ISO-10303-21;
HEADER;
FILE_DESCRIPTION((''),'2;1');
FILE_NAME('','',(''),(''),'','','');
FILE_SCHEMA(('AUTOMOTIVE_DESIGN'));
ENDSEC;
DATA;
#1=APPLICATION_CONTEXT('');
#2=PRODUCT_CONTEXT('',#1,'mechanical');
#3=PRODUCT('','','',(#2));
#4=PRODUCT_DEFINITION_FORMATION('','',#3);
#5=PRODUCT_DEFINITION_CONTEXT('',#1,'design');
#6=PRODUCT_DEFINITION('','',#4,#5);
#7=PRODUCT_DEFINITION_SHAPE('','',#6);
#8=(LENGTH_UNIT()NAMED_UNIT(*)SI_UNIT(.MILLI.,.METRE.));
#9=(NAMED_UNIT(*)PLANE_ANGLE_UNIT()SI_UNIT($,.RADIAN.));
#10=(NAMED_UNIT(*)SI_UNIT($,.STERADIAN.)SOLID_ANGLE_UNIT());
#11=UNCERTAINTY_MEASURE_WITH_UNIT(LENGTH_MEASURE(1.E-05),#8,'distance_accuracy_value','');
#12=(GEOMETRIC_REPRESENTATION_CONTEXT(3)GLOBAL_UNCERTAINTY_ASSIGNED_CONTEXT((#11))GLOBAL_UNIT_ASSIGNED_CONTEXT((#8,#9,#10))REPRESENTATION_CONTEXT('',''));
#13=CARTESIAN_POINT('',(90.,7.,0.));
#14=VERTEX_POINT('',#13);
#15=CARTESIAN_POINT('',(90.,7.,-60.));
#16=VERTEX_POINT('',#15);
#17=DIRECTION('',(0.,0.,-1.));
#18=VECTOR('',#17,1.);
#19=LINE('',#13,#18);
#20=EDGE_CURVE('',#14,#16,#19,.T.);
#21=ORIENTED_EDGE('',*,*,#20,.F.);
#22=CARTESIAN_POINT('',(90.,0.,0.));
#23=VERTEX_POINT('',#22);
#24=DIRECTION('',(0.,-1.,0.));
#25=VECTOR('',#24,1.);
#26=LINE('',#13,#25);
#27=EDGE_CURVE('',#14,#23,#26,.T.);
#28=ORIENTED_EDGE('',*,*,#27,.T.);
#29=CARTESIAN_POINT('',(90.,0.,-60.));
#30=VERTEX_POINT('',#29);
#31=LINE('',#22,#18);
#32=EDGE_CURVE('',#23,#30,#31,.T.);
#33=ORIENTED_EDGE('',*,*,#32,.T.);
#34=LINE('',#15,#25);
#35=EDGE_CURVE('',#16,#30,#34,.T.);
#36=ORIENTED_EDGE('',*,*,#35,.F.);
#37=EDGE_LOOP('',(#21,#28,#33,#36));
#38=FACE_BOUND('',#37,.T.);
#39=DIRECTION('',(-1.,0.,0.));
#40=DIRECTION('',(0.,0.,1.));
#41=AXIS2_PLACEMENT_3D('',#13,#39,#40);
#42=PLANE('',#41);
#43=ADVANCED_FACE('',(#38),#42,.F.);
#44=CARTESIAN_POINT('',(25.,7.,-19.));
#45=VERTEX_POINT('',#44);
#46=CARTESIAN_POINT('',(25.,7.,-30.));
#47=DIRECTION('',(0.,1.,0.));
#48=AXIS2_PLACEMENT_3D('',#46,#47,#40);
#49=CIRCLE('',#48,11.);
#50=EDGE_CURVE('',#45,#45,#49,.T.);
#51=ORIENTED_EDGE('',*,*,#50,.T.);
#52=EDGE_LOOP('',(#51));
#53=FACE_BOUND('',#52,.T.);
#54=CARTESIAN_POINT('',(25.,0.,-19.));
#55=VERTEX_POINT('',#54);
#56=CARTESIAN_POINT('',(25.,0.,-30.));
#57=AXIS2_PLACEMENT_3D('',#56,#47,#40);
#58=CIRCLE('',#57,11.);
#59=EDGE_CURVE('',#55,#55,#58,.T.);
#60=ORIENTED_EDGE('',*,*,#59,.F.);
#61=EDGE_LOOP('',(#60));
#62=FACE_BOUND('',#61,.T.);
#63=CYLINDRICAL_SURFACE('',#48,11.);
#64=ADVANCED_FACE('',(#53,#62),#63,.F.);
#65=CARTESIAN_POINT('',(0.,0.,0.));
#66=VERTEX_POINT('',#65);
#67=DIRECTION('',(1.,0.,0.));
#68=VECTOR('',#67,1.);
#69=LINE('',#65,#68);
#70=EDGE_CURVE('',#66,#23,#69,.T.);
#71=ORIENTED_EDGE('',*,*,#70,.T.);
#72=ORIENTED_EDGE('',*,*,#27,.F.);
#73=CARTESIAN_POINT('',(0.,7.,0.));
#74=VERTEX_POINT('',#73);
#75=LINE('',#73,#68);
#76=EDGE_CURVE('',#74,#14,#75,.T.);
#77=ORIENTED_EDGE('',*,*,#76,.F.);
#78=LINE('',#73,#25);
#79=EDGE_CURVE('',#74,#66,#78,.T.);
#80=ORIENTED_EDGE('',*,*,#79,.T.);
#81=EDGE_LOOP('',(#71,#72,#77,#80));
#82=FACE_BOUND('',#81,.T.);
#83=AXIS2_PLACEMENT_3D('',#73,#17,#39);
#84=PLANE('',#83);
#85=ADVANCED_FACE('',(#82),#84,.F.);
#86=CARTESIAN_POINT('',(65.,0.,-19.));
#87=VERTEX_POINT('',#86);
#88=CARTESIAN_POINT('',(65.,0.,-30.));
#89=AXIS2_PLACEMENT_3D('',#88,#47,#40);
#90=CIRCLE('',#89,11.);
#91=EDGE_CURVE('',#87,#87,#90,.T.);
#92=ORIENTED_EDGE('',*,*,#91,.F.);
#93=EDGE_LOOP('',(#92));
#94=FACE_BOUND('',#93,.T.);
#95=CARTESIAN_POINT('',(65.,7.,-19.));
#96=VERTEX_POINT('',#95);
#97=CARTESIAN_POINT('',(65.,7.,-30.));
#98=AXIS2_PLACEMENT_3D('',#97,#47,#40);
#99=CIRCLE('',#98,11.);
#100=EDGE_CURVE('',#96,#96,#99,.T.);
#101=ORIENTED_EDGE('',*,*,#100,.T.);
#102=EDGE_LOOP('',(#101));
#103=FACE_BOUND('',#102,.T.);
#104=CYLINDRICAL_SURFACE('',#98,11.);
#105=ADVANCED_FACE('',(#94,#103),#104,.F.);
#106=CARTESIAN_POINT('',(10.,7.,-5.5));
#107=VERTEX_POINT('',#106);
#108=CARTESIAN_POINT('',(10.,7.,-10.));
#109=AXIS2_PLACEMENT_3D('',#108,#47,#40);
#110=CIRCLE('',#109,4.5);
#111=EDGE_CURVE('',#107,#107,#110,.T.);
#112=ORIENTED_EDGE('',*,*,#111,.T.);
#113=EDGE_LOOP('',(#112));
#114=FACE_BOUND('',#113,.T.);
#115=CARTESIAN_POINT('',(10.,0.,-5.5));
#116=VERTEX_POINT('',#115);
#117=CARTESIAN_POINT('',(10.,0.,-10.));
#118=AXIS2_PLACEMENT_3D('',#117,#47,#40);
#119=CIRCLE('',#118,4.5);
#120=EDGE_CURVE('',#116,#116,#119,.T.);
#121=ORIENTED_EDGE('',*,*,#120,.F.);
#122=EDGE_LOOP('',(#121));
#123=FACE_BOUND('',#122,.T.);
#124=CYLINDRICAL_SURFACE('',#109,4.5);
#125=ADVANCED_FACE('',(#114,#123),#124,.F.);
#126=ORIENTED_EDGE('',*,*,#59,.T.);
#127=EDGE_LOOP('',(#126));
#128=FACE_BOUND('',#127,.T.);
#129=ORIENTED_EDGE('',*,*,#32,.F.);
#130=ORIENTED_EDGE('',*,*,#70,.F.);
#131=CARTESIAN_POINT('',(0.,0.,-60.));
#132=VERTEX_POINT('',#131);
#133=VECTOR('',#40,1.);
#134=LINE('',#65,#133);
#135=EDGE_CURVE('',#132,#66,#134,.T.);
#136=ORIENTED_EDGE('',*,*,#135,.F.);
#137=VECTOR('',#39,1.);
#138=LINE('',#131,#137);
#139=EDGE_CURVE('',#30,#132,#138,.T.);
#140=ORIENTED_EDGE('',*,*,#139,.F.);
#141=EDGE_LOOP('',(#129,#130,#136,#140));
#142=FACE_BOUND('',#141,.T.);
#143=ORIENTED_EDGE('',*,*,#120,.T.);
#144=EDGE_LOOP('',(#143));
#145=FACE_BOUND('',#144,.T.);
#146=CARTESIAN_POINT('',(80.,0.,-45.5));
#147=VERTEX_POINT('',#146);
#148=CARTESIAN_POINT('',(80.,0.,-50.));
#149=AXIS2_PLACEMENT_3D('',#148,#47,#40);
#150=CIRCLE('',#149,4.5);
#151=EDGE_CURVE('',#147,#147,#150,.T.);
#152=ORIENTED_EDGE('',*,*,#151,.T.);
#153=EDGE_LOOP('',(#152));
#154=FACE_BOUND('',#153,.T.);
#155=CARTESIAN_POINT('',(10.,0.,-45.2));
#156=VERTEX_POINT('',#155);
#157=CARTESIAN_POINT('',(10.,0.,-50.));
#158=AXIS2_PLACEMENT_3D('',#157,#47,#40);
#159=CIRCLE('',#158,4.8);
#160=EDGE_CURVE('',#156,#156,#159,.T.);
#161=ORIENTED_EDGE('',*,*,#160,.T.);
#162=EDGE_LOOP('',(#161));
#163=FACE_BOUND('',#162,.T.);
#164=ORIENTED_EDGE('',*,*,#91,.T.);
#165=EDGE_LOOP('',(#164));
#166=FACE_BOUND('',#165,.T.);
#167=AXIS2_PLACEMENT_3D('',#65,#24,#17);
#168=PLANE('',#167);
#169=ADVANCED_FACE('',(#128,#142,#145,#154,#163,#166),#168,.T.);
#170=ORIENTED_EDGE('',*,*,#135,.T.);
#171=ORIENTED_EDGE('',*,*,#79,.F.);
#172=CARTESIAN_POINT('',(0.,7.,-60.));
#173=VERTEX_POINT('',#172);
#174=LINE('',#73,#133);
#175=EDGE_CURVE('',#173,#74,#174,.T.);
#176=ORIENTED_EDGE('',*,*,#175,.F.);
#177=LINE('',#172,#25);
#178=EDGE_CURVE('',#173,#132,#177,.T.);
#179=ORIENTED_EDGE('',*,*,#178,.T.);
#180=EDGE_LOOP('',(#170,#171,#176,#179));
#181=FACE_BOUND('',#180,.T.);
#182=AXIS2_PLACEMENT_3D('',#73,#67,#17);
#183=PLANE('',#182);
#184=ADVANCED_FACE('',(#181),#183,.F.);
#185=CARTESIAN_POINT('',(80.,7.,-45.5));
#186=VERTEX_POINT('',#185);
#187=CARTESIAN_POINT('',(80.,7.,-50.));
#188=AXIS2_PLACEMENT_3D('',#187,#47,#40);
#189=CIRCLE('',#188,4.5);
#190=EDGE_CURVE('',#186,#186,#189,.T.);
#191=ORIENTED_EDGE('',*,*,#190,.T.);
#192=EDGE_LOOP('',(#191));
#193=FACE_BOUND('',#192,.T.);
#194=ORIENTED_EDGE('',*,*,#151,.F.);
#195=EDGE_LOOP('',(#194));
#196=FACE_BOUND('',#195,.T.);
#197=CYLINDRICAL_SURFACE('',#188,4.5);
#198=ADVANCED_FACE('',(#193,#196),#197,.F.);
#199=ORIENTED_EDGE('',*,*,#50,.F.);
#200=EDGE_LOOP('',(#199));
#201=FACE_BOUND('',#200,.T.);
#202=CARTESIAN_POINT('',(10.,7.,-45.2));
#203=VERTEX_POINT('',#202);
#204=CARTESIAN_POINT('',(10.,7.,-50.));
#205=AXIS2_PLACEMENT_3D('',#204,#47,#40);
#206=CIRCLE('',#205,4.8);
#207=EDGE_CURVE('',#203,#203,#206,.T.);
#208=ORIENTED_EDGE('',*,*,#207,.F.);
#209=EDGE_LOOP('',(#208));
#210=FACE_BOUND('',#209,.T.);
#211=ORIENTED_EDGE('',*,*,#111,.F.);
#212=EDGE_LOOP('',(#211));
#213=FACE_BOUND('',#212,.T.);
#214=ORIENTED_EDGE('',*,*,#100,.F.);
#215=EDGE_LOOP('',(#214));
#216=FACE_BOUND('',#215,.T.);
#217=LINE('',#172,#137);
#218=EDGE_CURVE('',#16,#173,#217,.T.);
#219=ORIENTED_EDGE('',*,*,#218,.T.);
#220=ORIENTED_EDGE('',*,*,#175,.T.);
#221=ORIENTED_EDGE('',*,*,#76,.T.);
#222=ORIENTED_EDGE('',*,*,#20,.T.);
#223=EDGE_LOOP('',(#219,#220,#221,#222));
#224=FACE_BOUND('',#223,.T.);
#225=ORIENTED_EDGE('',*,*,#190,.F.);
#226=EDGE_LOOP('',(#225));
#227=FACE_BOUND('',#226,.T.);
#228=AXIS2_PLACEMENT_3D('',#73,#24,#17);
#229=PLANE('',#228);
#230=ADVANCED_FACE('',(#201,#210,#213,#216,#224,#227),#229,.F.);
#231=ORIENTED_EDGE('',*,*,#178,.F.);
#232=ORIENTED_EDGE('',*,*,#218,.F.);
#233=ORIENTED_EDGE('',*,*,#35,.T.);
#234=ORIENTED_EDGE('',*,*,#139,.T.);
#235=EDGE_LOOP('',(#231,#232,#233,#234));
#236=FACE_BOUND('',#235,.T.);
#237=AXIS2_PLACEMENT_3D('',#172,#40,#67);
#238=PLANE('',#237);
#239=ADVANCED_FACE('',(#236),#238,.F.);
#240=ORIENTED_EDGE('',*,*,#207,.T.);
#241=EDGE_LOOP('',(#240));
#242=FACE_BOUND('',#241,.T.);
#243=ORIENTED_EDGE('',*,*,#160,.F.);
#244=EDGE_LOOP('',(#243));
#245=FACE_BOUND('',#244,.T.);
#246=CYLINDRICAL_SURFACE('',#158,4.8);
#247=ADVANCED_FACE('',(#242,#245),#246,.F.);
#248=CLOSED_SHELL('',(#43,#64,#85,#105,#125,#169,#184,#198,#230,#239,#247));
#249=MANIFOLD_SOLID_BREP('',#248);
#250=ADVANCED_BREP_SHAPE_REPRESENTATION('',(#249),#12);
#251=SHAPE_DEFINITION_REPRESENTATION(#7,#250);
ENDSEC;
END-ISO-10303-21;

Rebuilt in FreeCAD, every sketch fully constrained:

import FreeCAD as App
import Part
import Sketcher

doc = App.newDocument("Part")
params = doc.addObject("Spreadsheet::Sheet", "Params")
for row, (alias, value) in enumerate([
    ("sketch1_width", "90 mm"),
    ("sketch1_height", "60 mm"),
    ("pad1_length", "7 mm"),
    ("sketch2_diameter", "22 mm"),
    ("hole_diameter", "22 mm"),
    ("sketch3_diameter", "9 mm"),
    ("hole2_diameter", "9 mm"),
    ("sketch4_diameter", "9.6 mm"),
    ("pocket1_length", "7 mm"),
], start=1):
    params.set(f"A{row}", alias)
    params.set(f"B{row}", "=" + value)
    params.setAlias(f"B{row}", alias)

body = doc.addObject("PartDesign::Body", "Body")

sketch1 = doc.addObject("Sketcher::SketchObject", "Sketch")
body.addObject(sketch1)
sketch1.AttachmentSupport = (doc.XZ_Plane, [""])
sketch1.MapMode = "FlatFace"
sketch1.addGeometry(Part.LineSegment(App.Vector(0, -60, 0), App.Vector(0, 0, 0)), False)
sketch1.addGeometry(Part.LineSegment(App.Vector(0, 0, 0), App.Vector(90, 0, 0)), False)
sketch1.addGeometry(Part.LineSegment(App.Vector(90, 0, 0), App.Vector(90, -60, 0)), False)
sketch1.addGeometry(Part.LineSegment(App.Vector(90, -60, 0), App.Vector(0, -60, 0)), False)
sketch1.addConstraint(Sketcher.Constraint("Coincident", 0, 2, 1, 1))
sketch1.addConstraint(Sketcher.Constraint("Coincident", 1, 2, 2, 1))
sketch1.addConstraint(Sketcher.Constraint("Coincident", 2, 2, 3, 1))
sketch1.addConstraint(Sketcher.Constraint("Coincident", 3, 2, 0, 1))
sketch1.addConstraint(Sketcher.Constraint("Vertical", 0))
sketch1.addConstraint(Sketcher.Constraint("Horizontal", 1))
sketch1.addConstraint(Sketcher.Constraint("Vertical", 2))
sketch1.addConstraint(Sketcher.Constraint("Horizontal", 3))
sketch1.addConstraint(Sketcher.Constraint("Coincident", 0, 2, -1, 1))
sketch1.addConstraint(Sketcher.Constraint("DistanceX", 1, 1, 1, 2, 90.0))
sketch1.addConstraint(Sketcher.Constraint("DistanceY", 0, 1, 0, 2, 60.0))
sketch1.setExpression("Constraints[9]", "Params.sketch1_width")
sketch1.setExpression("Constraints[10]", "Params.sketch1_height")
pad1 = doc.addObject("PartDesign::Pad", "Pad")
body.addObject(pad1)
pad1.Profile = sketch1
pad1.setExpression("Length", "Params.pad1_length")
pad1.Reversed = True

sketch2 = doc.addObject("Sketcher::SketchObject", "Sketch001")
body.addObject(sketch2)
sketch2.AttachmentSupport = (doc.XZ_Plane, [""])
sketch2.MapMode = "FlatFace"
sketch2.AttachmentOffset = App.Placement(App.Vector(0, 0, -7), App.Rotation())
sketch2.addGeometry(Part.Circle(App.Vector(25, -30, 0), App.Vector(0, 0, 1), 11), False)
sketch2.addGeometry(Part.Circle(App.Vector(65, -30, 0), App.Vector(0, 0, 1), 11), False)
sketch2.addConstraint(Sketcher.Constraint("Equal", 0, 1))
sketch2.addConstraint(Sketcher.Constraint("Horizontal", 0, 3, 1, 3))
sketch2.addConstraint(Sketcher.Constraint("Diameter", 0, 22.0))
sketch2.addConstraint(Sketcher.Constraint("DistanceX", -1, 1, 0, 3, 25.0))
sketch2.addConstraint(Sketcher.Constraint("DistanceY", 0, 3, -1, 1, 30.0))
sketch2.addConstraint(Sketcher.Constraint("DistanceX", -1, 1, 1, 3, 65.0))
sketch2.setExpression("Constraints[2]", "Params.sketch2_diameter")
doc.recompute()
hole = doc.addObject("PartDesign::Hole", "Hole")
body.addObject(hole)
hole.Profile = sketch2
hole.ThreadType = "None"
hole.setExpression("Diameter", "Params.hole_diameter")
hole.DepthType = "ThroughAll"
hole.Reversed = True

sketch3 = doc.addObject("Sketcher::SketchObject", "Sketch002")
body.addObject(sketch3)
sketch3.AttachmentSupport = (doc.XZ_Plane, [""])
sketch3.MapMode = "FlatFace"
sketch3.AttachmentOffset = App.Placement(App.Vector(0, 0, -7), App.Rotation())
sketch3.addGeometry(Part.Circle(App.Vector(80, -50, 0), App.Vector(0, 0, 1), 4.5), False)
sketch3.addGeometry(Part.Circle(App.Vector(10, -10, 0), App.Vector(0, 0, 1), 4.5), False)
sketch3.addConstraint(Sketcher.Constraint("Equal", 0, 1))
sketch3.addConstraint(Sketcher.Constraint("Diameter", 0, 9.0))
sketch3.addConstraint(Sketcher.Constraint("DistanceX", -1, 1, 0, 3, 80.0))
sketch3.addConstraint(Sketcher.Constraint("DistanceY", 0, 3, -1, 1, 50.0))
sketch3.addConstraint(Sketcher.Constraint("DistanceX", -1, 1, 1, 3, 10.0))
sketch3.addConstraint(Sketcher.Constraint("DistanceY", 1, 3, -1, 1, 10.0))
sketch3.setExpression("Constraints[1]", "Params.sketch3_diameter")
doc.recompute()
hole2 = doc.addObject("PartDesign::Hole", "Hole001")
body.addObject(hole2)
hole2.Profile = sketch3
hole2.ThreadType = "None"
hole2.setExpression("Diameter", "Params.hole2_diameter")
hole2.DepthType = "ThroughAll"
hole2.Reversed = True

sketch4 = doc.addObject("Sketcher::SketchObject", "Sketch003")
body.addObject(sketch4)
sketch4.AttachmentSupport = (doc.XZ_Plane, [""])
sketch4.MapMode = "FlatFace"
sketch4.AttachmentOffset = App.Placement(App.Vector(0, 0, -7), App.Rotation())
sketch4.addGeometry(Part.Circle(App.Vector(10, -50, 0), App.Vector(0, 0, 1), 4.8), False)
sketch4.addConstraint(Sketcher.Constraint("Diameter", 0, 9.6))
sketch4.addConstraint(Sketcher.Constraint("DistanceX", -1, 1, 0, 3, 10.0))
sketch4.addConstraint(Sketcher.Constraint("DistanceY", 0, 3, -1, 1, 50.0))
sketch4.setExpression("Constraints[0]", "Params.sketch4_diameter")
pocket1 = doc.addObject("PartDesign::Pocket", "Pocket")
body.addObject(pocket1)
pocket1.Profile = sketch4
pocket1.setExpression("Length", "Params.pocket1_length")
pocket1.Reversed = True

doc.recompute()
